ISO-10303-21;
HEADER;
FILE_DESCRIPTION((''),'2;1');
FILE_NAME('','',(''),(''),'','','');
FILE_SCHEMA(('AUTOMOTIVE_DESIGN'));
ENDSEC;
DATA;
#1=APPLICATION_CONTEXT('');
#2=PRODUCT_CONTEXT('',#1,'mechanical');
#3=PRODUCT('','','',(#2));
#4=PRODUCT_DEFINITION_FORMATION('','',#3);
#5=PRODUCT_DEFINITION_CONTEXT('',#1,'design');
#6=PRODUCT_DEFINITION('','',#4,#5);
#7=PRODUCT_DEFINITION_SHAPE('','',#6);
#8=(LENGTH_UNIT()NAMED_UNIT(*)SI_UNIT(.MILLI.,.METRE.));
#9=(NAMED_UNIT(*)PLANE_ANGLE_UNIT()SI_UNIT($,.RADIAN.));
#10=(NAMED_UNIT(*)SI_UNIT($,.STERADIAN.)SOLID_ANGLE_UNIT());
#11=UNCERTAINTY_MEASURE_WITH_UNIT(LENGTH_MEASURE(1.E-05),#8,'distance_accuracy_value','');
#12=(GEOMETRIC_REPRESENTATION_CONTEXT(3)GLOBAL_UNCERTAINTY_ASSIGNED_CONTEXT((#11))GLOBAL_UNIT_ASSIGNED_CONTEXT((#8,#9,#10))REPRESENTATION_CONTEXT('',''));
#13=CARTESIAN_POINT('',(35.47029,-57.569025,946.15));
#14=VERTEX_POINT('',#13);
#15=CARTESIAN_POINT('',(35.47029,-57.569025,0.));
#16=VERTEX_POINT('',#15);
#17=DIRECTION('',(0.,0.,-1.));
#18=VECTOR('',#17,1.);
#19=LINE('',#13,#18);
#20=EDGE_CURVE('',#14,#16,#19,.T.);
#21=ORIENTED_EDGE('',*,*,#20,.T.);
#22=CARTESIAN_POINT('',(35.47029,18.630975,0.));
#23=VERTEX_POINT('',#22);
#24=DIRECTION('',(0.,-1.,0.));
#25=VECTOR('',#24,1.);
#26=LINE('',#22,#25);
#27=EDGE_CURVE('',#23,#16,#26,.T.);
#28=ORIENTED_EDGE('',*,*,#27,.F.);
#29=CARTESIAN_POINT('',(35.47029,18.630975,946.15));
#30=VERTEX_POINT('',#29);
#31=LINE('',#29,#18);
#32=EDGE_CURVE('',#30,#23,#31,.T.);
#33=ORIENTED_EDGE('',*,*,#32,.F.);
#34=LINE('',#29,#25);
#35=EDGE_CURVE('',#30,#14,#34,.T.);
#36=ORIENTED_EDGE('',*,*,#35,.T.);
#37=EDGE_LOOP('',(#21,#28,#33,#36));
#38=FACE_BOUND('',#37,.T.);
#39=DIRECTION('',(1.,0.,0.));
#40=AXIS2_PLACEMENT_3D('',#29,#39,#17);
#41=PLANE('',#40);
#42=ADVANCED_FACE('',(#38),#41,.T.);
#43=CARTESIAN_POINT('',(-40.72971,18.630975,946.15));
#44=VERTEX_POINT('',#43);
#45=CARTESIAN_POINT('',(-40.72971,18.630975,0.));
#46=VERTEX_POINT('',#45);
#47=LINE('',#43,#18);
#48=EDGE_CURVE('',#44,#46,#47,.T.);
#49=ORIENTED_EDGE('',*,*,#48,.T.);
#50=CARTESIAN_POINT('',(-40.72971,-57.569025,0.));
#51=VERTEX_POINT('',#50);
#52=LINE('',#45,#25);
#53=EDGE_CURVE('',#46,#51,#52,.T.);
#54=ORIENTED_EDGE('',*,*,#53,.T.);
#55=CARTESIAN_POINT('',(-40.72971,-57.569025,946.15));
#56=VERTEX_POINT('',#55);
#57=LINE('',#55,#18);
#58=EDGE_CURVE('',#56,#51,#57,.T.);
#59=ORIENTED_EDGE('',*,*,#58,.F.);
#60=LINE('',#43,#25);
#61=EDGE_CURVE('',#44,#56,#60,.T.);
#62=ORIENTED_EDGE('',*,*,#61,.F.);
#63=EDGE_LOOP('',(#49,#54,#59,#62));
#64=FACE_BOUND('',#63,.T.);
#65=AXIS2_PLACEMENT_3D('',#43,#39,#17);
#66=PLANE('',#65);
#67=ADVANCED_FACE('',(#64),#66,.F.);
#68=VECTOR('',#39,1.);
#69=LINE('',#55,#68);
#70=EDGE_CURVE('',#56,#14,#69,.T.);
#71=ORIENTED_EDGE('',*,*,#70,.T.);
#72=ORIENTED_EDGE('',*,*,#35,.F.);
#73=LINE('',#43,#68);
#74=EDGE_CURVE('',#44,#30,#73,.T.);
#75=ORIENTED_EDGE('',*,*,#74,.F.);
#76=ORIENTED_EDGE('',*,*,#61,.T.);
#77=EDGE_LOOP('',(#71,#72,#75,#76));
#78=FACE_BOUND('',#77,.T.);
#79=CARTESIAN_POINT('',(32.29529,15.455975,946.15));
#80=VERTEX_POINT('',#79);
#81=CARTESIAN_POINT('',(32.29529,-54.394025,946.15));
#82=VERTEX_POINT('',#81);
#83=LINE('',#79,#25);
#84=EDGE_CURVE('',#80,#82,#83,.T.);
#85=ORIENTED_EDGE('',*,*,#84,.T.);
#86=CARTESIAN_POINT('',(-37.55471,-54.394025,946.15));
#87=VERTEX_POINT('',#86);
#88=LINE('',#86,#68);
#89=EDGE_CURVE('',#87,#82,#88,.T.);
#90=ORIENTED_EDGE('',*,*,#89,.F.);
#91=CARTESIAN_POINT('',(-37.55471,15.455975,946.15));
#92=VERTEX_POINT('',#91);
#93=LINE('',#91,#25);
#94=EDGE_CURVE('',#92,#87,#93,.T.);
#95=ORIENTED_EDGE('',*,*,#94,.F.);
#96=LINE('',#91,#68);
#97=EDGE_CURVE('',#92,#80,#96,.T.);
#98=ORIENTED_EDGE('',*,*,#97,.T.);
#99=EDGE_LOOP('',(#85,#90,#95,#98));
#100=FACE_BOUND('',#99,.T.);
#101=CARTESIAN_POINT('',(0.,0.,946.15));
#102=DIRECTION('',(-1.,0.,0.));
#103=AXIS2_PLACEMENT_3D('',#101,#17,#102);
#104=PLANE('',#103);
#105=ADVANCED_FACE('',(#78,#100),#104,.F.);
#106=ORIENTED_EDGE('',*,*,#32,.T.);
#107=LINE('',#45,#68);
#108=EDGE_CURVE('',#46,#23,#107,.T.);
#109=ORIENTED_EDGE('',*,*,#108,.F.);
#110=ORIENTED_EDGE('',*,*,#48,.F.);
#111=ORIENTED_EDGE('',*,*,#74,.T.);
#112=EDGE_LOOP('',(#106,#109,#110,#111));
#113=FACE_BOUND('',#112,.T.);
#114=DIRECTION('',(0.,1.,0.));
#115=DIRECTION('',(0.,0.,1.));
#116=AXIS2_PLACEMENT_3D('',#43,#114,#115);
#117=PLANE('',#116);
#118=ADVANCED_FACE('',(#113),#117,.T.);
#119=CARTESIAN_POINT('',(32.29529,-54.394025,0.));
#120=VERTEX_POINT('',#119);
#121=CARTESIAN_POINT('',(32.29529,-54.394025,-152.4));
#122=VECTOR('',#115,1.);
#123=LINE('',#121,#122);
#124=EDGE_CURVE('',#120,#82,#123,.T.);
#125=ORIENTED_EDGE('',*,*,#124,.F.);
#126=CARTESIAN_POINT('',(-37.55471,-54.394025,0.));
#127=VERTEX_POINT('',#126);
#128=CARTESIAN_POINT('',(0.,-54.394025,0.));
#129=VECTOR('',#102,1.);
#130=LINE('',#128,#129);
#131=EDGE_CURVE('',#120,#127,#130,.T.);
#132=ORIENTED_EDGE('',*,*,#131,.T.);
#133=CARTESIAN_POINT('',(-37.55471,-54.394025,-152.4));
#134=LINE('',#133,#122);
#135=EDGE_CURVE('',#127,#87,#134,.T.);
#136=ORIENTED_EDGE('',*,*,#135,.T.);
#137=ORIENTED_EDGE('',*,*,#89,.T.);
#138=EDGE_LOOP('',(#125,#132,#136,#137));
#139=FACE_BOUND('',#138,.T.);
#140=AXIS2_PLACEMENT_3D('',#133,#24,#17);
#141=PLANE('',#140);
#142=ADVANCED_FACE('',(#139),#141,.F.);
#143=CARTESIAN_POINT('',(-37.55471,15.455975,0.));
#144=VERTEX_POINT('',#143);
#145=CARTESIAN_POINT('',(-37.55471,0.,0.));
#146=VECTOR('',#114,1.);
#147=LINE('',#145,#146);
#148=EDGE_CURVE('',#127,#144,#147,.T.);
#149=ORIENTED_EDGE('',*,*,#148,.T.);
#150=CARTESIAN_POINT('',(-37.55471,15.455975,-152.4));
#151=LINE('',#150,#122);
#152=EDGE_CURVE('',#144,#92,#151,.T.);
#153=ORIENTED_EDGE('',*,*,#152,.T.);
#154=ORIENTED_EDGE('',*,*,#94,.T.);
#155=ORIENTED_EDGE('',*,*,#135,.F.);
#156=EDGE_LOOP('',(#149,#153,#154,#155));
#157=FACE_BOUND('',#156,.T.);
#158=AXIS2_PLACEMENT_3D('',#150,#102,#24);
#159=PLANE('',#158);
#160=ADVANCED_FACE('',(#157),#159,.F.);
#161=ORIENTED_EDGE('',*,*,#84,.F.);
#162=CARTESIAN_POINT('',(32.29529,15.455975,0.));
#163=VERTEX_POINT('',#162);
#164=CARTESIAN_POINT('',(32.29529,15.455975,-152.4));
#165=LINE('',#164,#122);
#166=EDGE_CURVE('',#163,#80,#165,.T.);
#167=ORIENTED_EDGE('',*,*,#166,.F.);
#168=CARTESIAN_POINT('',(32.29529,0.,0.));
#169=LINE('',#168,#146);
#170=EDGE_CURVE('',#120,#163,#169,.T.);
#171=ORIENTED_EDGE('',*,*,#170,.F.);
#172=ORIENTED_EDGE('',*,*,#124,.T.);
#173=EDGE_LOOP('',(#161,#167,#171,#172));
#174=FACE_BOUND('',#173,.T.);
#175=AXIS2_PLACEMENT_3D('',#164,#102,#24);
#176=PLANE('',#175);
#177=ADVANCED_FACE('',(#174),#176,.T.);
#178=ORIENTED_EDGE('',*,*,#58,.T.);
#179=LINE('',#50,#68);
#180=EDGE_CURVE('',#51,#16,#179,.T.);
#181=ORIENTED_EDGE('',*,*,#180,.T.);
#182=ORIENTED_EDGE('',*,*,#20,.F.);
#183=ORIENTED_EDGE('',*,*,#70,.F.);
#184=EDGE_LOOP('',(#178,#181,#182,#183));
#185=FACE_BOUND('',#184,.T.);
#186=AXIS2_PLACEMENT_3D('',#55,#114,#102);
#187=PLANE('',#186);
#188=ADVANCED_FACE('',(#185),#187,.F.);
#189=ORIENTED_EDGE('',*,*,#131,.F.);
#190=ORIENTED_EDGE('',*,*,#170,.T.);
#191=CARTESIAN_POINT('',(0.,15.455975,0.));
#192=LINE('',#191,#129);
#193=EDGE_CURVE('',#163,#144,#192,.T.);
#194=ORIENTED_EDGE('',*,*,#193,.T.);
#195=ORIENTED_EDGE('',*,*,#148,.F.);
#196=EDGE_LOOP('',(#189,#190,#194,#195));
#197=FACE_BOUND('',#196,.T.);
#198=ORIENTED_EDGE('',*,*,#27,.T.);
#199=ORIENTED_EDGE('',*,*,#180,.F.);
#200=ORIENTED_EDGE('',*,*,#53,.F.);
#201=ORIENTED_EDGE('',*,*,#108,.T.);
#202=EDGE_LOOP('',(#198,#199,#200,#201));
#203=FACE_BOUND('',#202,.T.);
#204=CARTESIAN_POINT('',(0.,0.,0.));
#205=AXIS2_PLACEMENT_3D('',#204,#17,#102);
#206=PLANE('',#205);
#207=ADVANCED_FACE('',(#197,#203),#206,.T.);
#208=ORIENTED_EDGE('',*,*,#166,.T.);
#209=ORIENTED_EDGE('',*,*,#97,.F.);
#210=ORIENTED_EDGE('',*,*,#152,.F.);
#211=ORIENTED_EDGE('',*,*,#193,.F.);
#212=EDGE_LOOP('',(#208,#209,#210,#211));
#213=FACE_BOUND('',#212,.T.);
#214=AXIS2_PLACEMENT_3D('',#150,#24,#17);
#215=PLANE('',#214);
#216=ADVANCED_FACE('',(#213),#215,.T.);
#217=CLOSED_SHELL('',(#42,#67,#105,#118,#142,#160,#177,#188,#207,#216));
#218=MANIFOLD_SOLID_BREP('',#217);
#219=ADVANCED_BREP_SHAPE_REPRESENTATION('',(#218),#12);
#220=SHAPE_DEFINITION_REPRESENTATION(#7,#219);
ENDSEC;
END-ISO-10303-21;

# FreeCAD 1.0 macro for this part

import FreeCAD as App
import Part
import Sketcher
Q = App.Units.Quantity

doc = App.newDocument("Part")
body = doc.addObject("PartDesign::Body", "Body")

# Sketch on XY plane
sketch1 = doc.addObject("Sketcher::SketchObject", "Sketch")
body.addObject(sketch1)
sketch1.AttachmentSupport = (doc.XY_Plane, [""])
sketch1.MapMode = "FlatFace"
sketch1.addGeometry([
    Part.LineSegment(App.Vector(-40.72971, 18.630975, 0), App.Vector(-40.72971, -57.569025, 0)),
    Part.LineSegment(App.Vector(-40.72971, -57.569025, 0), App.Vector(35.47029, -57.569025, 0)),
    Part.LineSegment(App.Vector(35.47029, -57.569025, 0), App.Vector(35.47029, 18.630975, 0)),
    Part.LineSegment(App.Vector(35.47029, 18.630975, 0), App.Vector(-40.72971, 18.630975, 0)),
], False)
sketch1.addConstraint([
    Sketcher.Constraint("Coincident", 0, 2, 1, 1),
    Sketcher.Constraint("Coincident", 1, 2, 2, 1),
    Sketcher.Constraint("Coincident", 2, 2, 3, 1),
    Sketcher.Constraint("Coincident", 3, 2, 0, 1),
    Sketcher.Constraint("Vertical", 0),
    Sketcher.Constraint("Horizontal", 1),
    Sketcher.Constraint("Vertical", 2),
    Sketcher.Constraint("Horizontal", 3),
    Sketcher.Constraint("Equal", 3, 0),
    Sketcher.Constraint("DistanceX", 1, 1, 1, 2, Q("3 in")),
    Sketcher.Constraint("DistanceX", 0, 2, -1, 1, Q("40.72971 mm")),
    Sketcher.Constraint("DistanceY", 0, 2, -1, 1, Q("57.569025 mm")),
])
pad1 = doc.addObject("PartDesign::Pad", "Pad")
body.addObject(pad1)
pad1.Profile = sketch1
pad1.Length = Q("37.25 in")

# Sketch on XY plane
sketch2 = doc.addObject("Sketcher::SketchObject", "Sketch001")
body.addObject(sketch2)
sketch2.AttachmentSupport = (doc.XY_Plane, [""])
sketch2.MapMode = "FlatFace"
sketch2.AttachmentOffset = App.Placement(App.Vector(0, 0, 37.25 * 25.4), App.Rotation())
sketch2.addGeometry([
    Part.LineSegment(App.Vector(-37.55471, 15.455975, 0), App.Vector(-37.55471, -54.394025, 0)),
    Part.LineSegment(App.Vector(-37.55471, -54.394025, 0), App.Vector(32.29529, -54.394025, 0)),
    Part.LineSegment(App.Vector(32.29529, -54.394025, 0), App.Vector(32.29529, 15.455975, 0)),
    Part.LineSegment(App.Vector(32.29529, 15.455975, 0), App.Vector(-37.55471, 15.455975, 0)),
], False)
sketch2.addConstraint([
    Sketcher.Constraint("Coincident", 0, 2, 1, 1),
    Sketcher.Constraint("Coincident", 1, 2, 2, 1),
    Sketcher.Constraint("Coincident", 2, 2, 3, 1),
    Sketcher.Constraint("Coincident", 3, 2, 0, 1),
    Sketcher.Constraint("Vertical", 0),
    Sketcher.Constraint("Horizontal", 1),
    Sketcher.Constraint("Vertical", 2),
    Sketcher.Constraint("Horizontal", 3),
    Sketcher.Constraint("Equal", 3, 0),
    Sketcher.Constraint("DistanceX", 1, 1, 1, 2, Q("2.75 in")),
    Sketcher.Constraint("DistanceX", 0, 2, -1, 1, Q("37.55471 mm")),
    Sketcher.Constraint("DistanceY", 0, 2, -1, 1, Q("54.394025 mm")),
])
pocket1 = doc.addObject("PartDesign::Pocket", "Pocket")
body.addObject(pocket1)
pocket1.Profile = sketch2
pocket1.Length = Q("43.25 in")

doc.recompute()
